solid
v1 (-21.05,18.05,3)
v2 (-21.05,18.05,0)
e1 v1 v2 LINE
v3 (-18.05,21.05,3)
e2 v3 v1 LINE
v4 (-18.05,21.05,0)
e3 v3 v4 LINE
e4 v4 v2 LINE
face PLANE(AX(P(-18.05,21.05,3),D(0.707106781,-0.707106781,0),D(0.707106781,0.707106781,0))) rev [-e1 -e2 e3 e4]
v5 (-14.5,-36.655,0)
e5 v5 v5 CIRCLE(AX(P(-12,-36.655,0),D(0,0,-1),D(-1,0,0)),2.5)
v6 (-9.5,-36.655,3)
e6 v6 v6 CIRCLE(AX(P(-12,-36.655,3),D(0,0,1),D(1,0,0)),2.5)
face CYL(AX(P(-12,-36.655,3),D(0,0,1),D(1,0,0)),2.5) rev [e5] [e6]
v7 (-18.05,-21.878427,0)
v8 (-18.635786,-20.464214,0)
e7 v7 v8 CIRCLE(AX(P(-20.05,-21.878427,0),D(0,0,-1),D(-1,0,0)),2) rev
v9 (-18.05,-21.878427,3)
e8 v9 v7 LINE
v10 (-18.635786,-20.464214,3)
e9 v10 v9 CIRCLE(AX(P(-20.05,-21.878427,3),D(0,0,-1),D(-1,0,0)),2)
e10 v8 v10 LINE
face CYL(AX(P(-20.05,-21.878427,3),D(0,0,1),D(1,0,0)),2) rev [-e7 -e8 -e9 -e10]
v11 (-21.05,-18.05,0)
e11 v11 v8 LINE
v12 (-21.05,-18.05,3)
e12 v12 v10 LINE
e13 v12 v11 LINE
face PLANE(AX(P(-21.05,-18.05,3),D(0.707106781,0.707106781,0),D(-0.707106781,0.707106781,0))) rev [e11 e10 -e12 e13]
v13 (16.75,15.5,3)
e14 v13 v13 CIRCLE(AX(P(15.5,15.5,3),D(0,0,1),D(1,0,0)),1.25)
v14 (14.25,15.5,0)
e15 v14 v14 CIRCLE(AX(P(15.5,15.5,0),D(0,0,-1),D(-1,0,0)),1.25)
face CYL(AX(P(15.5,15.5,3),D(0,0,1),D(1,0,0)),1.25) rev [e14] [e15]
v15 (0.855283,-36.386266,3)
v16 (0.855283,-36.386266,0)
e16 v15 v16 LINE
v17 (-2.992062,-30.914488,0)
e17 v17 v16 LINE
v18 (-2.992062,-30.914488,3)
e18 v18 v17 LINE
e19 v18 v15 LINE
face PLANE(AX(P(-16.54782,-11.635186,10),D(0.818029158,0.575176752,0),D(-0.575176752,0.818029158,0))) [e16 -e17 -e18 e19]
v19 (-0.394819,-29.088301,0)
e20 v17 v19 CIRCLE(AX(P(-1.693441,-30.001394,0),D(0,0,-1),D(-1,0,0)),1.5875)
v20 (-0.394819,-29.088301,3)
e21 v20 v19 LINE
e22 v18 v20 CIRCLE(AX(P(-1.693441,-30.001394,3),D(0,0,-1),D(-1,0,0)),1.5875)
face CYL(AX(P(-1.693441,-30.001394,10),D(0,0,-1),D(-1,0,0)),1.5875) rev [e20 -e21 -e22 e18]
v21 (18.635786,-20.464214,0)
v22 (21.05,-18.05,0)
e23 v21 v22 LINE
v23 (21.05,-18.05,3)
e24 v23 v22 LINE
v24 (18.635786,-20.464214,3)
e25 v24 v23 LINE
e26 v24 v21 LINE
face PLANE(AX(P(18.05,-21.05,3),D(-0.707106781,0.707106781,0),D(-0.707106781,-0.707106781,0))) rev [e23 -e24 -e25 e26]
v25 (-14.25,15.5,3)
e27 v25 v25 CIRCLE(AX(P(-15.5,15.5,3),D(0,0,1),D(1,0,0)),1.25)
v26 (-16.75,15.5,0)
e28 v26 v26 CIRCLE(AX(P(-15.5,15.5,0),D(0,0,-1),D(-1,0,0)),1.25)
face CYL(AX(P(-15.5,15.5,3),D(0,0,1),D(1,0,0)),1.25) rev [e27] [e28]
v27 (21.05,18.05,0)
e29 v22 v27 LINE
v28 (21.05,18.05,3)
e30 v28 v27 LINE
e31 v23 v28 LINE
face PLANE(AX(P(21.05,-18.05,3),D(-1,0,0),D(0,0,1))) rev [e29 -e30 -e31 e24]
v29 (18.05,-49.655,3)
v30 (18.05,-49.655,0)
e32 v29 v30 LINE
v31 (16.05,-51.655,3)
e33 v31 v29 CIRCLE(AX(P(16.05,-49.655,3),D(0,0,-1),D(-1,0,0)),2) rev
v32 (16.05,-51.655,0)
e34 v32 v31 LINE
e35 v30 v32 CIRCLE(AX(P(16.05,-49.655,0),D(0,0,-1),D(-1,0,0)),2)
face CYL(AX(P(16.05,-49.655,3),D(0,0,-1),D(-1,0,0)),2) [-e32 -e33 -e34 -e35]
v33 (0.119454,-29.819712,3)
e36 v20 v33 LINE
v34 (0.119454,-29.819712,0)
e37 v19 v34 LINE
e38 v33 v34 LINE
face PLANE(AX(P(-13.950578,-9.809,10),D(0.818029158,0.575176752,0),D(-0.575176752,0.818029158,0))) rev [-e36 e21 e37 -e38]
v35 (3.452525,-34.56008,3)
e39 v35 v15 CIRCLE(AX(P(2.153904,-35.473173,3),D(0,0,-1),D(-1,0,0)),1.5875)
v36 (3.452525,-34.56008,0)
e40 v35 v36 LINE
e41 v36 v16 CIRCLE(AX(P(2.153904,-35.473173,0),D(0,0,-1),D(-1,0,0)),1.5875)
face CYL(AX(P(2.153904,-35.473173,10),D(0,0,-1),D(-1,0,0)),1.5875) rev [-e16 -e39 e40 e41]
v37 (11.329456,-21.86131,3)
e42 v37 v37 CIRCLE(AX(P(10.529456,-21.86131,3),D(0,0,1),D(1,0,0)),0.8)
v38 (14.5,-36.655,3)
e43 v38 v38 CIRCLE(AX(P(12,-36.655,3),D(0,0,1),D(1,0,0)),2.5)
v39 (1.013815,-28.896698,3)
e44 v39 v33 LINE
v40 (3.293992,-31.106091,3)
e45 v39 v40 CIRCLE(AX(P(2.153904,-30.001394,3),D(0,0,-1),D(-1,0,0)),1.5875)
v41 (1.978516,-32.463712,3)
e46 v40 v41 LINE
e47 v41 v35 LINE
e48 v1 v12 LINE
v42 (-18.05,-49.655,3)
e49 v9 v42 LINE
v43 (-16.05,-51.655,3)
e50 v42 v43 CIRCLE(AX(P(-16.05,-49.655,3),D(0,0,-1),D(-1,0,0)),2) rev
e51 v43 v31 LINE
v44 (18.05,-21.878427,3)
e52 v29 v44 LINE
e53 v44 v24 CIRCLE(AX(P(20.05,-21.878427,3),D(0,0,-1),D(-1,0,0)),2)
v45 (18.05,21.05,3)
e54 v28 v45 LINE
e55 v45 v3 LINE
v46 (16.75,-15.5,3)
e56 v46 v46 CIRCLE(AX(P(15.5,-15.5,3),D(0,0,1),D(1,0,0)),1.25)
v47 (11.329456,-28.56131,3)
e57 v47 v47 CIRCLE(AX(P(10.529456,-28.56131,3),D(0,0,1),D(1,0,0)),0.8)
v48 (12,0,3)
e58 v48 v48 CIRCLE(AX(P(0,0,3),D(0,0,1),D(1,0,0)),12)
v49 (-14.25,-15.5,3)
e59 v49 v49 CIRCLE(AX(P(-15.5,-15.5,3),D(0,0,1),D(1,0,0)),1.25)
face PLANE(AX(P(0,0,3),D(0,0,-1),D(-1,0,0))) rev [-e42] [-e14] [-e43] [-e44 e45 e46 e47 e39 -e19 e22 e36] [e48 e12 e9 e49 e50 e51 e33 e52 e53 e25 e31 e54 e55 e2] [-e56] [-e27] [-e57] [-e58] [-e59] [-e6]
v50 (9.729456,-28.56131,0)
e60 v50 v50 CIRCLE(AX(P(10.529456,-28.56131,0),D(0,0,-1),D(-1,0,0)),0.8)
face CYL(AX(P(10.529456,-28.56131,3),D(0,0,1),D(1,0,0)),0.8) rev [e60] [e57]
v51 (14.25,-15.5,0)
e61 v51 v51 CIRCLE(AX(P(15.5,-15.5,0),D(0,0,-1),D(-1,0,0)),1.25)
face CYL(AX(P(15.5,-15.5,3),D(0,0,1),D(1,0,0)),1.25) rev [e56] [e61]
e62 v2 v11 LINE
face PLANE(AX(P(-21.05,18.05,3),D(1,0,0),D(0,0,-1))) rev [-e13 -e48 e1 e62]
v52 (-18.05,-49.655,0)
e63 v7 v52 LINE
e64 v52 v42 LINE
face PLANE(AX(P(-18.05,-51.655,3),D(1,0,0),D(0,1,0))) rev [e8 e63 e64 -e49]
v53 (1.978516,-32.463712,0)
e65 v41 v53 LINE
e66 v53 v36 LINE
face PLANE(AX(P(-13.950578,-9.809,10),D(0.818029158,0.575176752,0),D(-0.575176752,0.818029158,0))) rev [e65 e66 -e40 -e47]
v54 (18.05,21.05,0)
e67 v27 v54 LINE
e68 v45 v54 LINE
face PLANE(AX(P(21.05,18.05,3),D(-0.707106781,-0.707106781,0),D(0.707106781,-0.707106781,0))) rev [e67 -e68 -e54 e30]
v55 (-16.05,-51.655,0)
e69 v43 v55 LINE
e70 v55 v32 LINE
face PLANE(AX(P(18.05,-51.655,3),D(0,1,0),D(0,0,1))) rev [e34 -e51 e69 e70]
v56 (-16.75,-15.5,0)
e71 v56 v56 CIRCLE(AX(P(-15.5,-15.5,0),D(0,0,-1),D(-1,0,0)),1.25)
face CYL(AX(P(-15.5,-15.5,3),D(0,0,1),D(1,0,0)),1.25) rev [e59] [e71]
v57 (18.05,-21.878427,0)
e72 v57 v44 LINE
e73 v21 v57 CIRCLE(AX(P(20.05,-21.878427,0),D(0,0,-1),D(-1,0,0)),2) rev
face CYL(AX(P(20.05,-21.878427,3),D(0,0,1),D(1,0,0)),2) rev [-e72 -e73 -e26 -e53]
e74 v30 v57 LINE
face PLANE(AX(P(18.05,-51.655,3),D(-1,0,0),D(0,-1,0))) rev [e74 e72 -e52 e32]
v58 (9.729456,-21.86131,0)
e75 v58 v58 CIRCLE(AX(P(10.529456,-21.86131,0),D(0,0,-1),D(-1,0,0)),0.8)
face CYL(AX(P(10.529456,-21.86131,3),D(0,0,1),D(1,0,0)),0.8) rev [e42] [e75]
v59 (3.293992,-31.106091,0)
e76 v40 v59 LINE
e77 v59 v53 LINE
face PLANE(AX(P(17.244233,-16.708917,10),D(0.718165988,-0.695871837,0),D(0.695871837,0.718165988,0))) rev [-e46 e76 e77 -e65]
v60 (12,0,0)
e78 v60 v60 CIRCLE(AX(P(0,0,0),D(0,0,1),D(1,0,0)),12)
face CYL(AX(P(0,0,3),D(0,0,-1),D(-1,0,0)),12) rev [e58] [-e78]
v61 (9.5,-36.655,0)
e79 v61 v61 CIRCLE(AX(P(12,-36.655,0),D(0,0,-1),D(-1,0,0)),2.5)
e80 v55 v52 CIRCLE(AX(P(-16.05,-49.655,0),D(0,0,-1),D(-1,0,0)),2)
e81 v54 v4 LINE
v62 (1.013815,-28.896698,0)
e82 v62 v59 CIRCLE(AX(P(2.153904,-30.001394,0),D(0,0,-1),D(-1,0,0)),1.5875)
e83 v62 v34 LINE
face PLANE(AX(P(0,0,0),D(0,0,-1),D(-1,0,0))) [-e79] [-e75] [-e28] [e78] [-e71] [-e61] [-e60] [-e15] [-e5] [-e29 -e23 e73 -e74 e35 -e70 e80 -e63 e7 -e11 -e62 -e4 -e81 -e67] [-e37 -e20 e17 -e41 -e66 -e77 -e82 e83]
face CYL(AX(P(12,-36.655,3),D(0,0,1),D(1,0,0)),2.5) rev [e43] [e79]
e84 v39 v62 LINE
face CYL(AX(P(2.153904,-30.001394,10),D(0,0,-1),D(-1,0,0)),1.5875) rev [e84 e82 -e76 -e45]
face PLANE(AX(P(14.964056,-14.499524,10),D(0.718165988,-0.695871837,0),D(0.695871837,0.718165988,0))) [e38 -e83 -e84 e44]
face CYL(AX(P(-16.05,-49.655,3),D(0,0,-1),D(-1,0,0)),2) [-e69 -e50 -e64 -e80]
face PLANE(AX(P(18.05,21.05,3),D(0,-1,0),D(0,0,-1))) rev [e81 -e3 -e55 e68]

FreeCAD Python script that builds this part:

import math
import FreeCAD as App
import Part
import Sketcher


def edges_at(feature, points):
    """Names of the edges that pass closest to the given points."""
    edges = feature.Shape.Edges
    near = lambda p: min(range(len(edges)), key=lambda i: edges[i].distToShape(Part.Vertex(*p))[0])
    return sorted({f"Edge{near(p) + 1}" for p in points})

doc = App.newDocument("Part")
params = doc.addObject("Spreadsheet::Sheet", "Params")
for row, (alias, value) in enumerate([
    ("sketch1_diameter", "24 mm"),
    ("sketch1_width", "36.1 mm"),
    ("pad1_length", "3 mm"),
    ("sketch2_diameter", "2.5 mm"),
    ("hole_diameter", "2.5 mm"),
    ("hole_depth", "5 mm"),
    ("sketch3_diameter", "5 mm"),
    ("hole2_diameter", "5 mm"),
    ("hole2_depth", "5 mm"),
    ("fillet_radius", "2 mm"),
    ("sketch4_diameter", "1.6 mm"),
    ("hole3_diameter", "1.6 mm"),
    ("hole3_depth", "5 mm"),
    ("pocket1_length", "10 mm"),
], start=1):
    params.set(f"A{row}", alias)
    params.set(f"B{row}", "=" + value)
    params.setAlias(f"B{row}", alias)

body = doc.addObject("PartDesign::Body", "Body")

# Sketch on XY plane
sketch1 = doc.addObject("Sketcher::SketchObject", "Sketch")
body.addObject(sketch1)
sketch1.AttachmentSupport = (doc.XY_Plane, [""])
sketch1.MapMode = "FlatFace"
sketch1.addGeometry(Part.LineSegment(App.Vector(18.05, -51.655, 0), App.Vector(18.05, -21.05, 0)), False)
sketch1.addGeometry(Part.LineSegment(App.Vector(18.05, -21.05, 0), App.Vector(21.05, -18.05, 0)), False)
sketch1.addGeometry(Part.LineSegment(App.Vector(21.05, -18.05, 0), App.Vector(21.05, 18.05, 0)), False)
sketch1.addGeometry(Part.LineSegment(App.Vector(21.05, 18.05, 0), App.Vector(18.05, 21.05, 0)), False)
sketch1.addGeometry(Part.LineSegment(App.Vector(18.05, 21.05, 0), App.Vector(-18.05, 21.05, 0)), False)
sketch1.addGeometry(Part.LineSegment(App.Vector(-18.05, 21.05, 0), App.Vector(-21.05, 18.05, 0)), False)
sketch1.addGeometry(Part.LineSegment(App.Vector(-21.05, 18.05, 0), App.Vector(-21.05, -18.05, 0)), False)
sketch1.addGeometry(Part.LineSegment(App.Vector(-21.05, -18.05, 0), App.Vector(-18.05, -21.05, 0)), False)
sketch1.addGeometry(Part.LineSegment(App.Vector(-18.05, -21.05, 0), App.Vector(-18.05, -51.655, 0)), False)
sketch1.addGeometry(Part.LineSegment(App.Vector(-18.05, -51.655, 0), App.Vector(18.05, -51.655, 0)), False)
sketch1.addGeometry(Part.Circle(App.Vector(0, 0, 0), App.Vector(0, 0, 1), 12), False)
sketch1.addConstraint(Sketcher.Constraint("Coincident", 0, 2, 1, 1))
sketch1.addConstraint(Sketcher.Constraint("Coincident", 1, 2, 2, 1))
sketch1.addConstraint(Sketcher.Constraint("Coincident", 2, 2, 3, 1))
sketch1.addConstraint(Sketcher.Constraint("Coincident", 3, 2, 4, 1))
sketch1.addConstraint(Sketcher.Constraint("Coincident", 4, 2, 5, 1))
sketch1.addConstraint(Sketcher.Constraint("Coincident", 5, 2, 6, 1))
sketch1.addConstraint(Sketcher.Constraint("Coincident", 6, 2, 7, 1))
sketch1.addConstraint(Sketcher.Constraint("Coincident", 7, 2, 8, 1))
sketch1.addConstraint(Sketcher.Constraint("Coincident", 8, 2, 9, 1))
sketch1.addConstraint(Sketcher.Constraint("Coincident", 9, 2, 0, 1))
sketch1.addConstraint(Sketcher.Constraint("Vertical", 0))
sketch1.addConstraint(Sketcher.Constraint("Vertical", 2))
sketch1.addConstraint(Sketcher.Constraint("Horizontal", 4))
sketch1.addConstraint(Sketcher.Constraint("Vertical", 6))
sketch1.addConstraint(Sketcher.Constraint("Vertical", 8))
sketch1.addConstraint(Sketcher.Constraint("Horizontal", 9))
sketch1.addConstraint(Sketcher.Constraint("Coincident", 10, 3, -1, 1))
sketch1.addConstraint(Sketcher.Constraint("Symmetric", 0, 2, 4, 2, -1, 1))
sketch1.addConstraint(Sketcher.Constraint("Symmetric", 1, 2, 5, 2, -1, 1))
sketch1.addConstraint(Sketcher.Constraint("Symmetric", 3, 2, 7, 2, -1, 1))
sketch1.addConstraint(Sketcher.Constraint("Perpendicular", 1, 3))
sketch1.addConstraint(Sketcher.Constraint("Perpendicular", 5, 7))
sketch1.addConstraint(Sketcher.Constraint("Horizontal", 2, 2, 5, 2))
sketch1.addConstraint(Sketcher.Constraint("Vertical", 0, 2, 3, 2))
sketch1.addConstraint(Sketcher.Constraint("Equal", 9, 2))
sketch1.addConstraint(Sketcher.Constraint("Diameter", 10, 24.0))
sketch1.addConstraint(Sketcher.Constraint("DistanceX", 4, 2, 4, 1, 36.1))
sketch1.addConstraint(Sketcher.Constraint("DistanceX", 0, 2, 1, 2, 3.0))
sketch1.addConstraint(Sketcher.Constraint("DistanceY", 0, 1, 0, 2, 30.605))
sketch1.setExpression("Constraints[25]", "Params.sketch1_diameter")
sketch1.setExpression("Constraints[26]", "Params.sketch1_width")
pad1 = doc.addObject("PartDesign::Pad", "Pad")
body.addObject(pad1)
pad1.Profile = sketch1
pad1.setExpression("Length", "Params.pad1_length")

# Sketch on XY plane
sketch2 = doc.addObject("Sketcher::SketchObject", "Sketch001")
body.addObject(sketch2)
sketch2.AttachmentSupport = (doc.XY_Plane, [""])
sketch2.MapMode = "FlatFace"
sketch2.AttachmentOffset = App.Placement(App.Vector(0, 0, 3), App.Rotation())
sketch2.addGeometry(Part.Circle(App.Vector(-15.5, 15.5, 0), App.Vector(0, 0, 1), 1.25), False)
sketch2.addGeometry(Part.Circle(App.Vector(15.5, 15.5, 0), App.Vector(0, 0, 1), 1.25), False)
sketch2.addGeometry(Part.Circle(App.Vector(-15.5, -15.5, 0), App.Vector(0, 0, 1), 1.25), False)
sketch2.addGeometry(Part.Circle(App.Vector(15.5, -15.5, 0), App.Vector(0, 0, 1), 1.25), False)
sketch2.addConstraint(Sketcher.Constraint("Equal", 0, 1))
sketch2.addConstraint(Sketcher.Constraint("Equal", 1, 2))
sketch2.addConstraint(Sketcher.Constraint("Equal", 2, 3))
sketch2.addConstraint(Sketcher.Constraint("Symmetric", 1, 3, 2, 3, -1, 1))
sketch2.addConstraint(Sketcher.Constraint("Symmetric", 0, 3, 3, 3, -1, 1))
sketch2.addConstraint(Sketcher.Constraint("Symmetric", 0, 3, 1, 3, -2))
sketch2.addConstraint(Sketcher.Constraint("Diameter", 0, 2.5))
sketch2.addConstraint(Sketcher.Constraint("DistanceX", 0, 3, 1, 3, 31.0))
sketch2.addConstraint(Sketcher.Constraint("DistanceY", 2, 3, 0, 3, 31.0))
sketch2.setExpression("Constraints[6]", "Params.sketch2_diameter")
doc.recompute()
hole = doc.addObject("PartDesign::Hole", "Hole")
body.addObject(hole)
hole.Profile = sketch2
hole.ThreadType = "None"
hole.setExpression("Diameter", "Params.hole_diameter")
hole.DepthType = "Dimension"
hole.setExpression("Depth", "Params.hole_depth")
hole.DrillPoint = "Angled"
hole.DrillPointAngle = 118

# Sketch on XY plane
sketch3 = doc.addObject("Sketcher::SketchObject", "Sketch002")
body.addObject(sketch3)
sketch3.AttachmentSupport = (doc.XY_Plane, [""])
sketch3.MapMode = "FlatFace"
sketch3.AttachmentOffset = App.Placement(App.Vector(0, 0, 3), App.Rotation())
sketch3.addGeometry(Part.Circle(App.Vector(-12, -36.655, 0), App.Vector(0, 0, 1), 2.5), False)
sketch3.addGeometry(Part.Circle(App.Vector(12, -36.655, 0), App.Vector(0, 0, 1), 2.5), False)
sketch3.addConstraint(Sketcher.Constraint("Equal", 0, 1))
sketch3.addConstraint(Sketcher.Constraint("Symmetric", 0, 3, 1, 3, -2))
sketch3.addConstraint(Sketcher.Constraint("Diameter", 0, 5.0))
sketch3.addConstraint(Sketcher.Constraint("DistanceX", 0, 3, -1, 1, 12.0))
sketch3.addConstraint(Sketcher.Constraint("DistanceY", 0, 3, -1, 1, 36.655))
sketch3.setExpression("Constraints[2]", "Params.sketch3_diameter")
doc.recompute()
hole2 = doc.addObject("PartDesign::Hole", "Hole001")
body.addObject(hole2)
hole2.Profile = sketch3
hole2.ThreadType = "None"
hole2.setExpression("Diameter", "Params.hole2_diameter")
hole2.DepthType = "Dimension"
hole2.setExpression("Depth", "Params.hole2_depth")
hole2.DrillPoint = "Angled"
hole2.DrillPointAngle = 118
doc.recompute()

fillet = doc.addObject("PartDesign::Fillet", "Fillet")
body.addObject(fillet)
fillet.Base = (hole2, edges_at(hole2, [
    (18.05, -21.05, 1.5),
    (18.05, -51.655, 1.5),
    (-18.05, -51.655, 1.5),
    (-18.05, -21.05, 1.5),
]))
fillet.setExpression("Radius", "Params.fillet_radius")

# Sketch on XY plane
sketch4 = doc.addObject("Sketcher::SketchObject", "Sketch003")
body.addObject(sketch4)
sketch4.AttachmentSupport = (doc.XY_Plane, [""])
sketch4.MapMode = "FlatFace"
sketch4.AttachmentOffset = App.Placement(App.Vector(0, 0, 3), App.Rotation())
sketch4.addGeometry(Part.Circle(App.Vector(10.529456, -21.86131, 0), App.Vector(0, 0, 1), 0.8), False)
sketch4.addGeometry(Part.Circle(App.Vector(10.529456, -28.56131, 0), App.Vector(0, 0, 1), 0.8), False)
sketch4.addConstraint(Sketcher.Constraint("Equal", 0, 1))
sketch4.addConstraint(Sketcher.Constraint("Vertical", 0, 3, 1, 3))
sketch4.addConstraint(Sketcher.Constraint("Diameter", 0, 1.6))
sketch4.addConstraint(Sketcher.Constraint("DistanceY", 1, 3, 0, 3, 6.7))
sketch4.addConstraint(Sketcher.Constraint("DistanceY", 0, 3, -1, 1, 21.86131))
sketch4.addConstraint(Sketcher.Constraint("DistanceX", -1, 1, 0, 3, 10.529456))
sketch4.setExpression("Constraints[2]", "Params.sketch4_diameter")
doc.recompute()
hole3 = doc.addObject("PartDesign::Hole", "Hole002")
body.addObject(hole3)
hole3.Profile = sketch4
hole3.ThreadType = "None"
hole3.setExpression("Diameter", "Params.hole3_diameter")
hole3.DepthType = "Dimension"
hole3.setExpression("Depth", "Params.hole3_depth")
hole3.DrillPoint = "Angled"
hole3.DrillPointAngle = 118

# Sketch on XY plane
sketch5 = doc.addObject("Sketcher::SketchObject", "Sketch004")
body.addObject(sketch5)
sketch5.AttachmentSupport = (doc.XY_Plane, [""])
sketch5.MapMode = "FlatFace"
sketch5.addGeometry(Part.LineSegment(App.Vector(0.855283, -36.386266, 0), App.Vector(-2.992062, -30.914488, 0)), False)
sketch5.addGeometry(Part.ArcOfCircle(Part.Circle(App.Vector(-1.693441, -30.001394, 0), App.Vector(0, 0, 1), 1.5875), math.radians(35.112011), math.radians(215.112011)), False)
sketch5.addGeometry(Part.LineSegment(App.Vector(-0.394819, -29.088301, 0), App.Vector(0.119454, -29.819712, 0)), False)
sketch5.addGeometry(Part.LineSegment(App.Vector(0.119454, -29.819712, 0), App.Vector(1.013815, -28.896698, 0)), False)
sketch5.addGeometry(Part.ArcOfCircle(Part.Circle(App.Vector(2.153904, -30.001394, 0), App.Vector(0, 0, 1), 1.5875), math.radians(-44.096732), math.radians(135.903268)), False)
sketch5.addGeometry(Part.LineSegment(App.Vector(3.293992, -31.106091, 0), App.Vector(1.978516, -32.463712, 0)), False)
sketch5.addGeometry(Part.LineSegment(App.Vector(1.978516, -32.463712, 0), App.Vector(3.452525, -34.56008, 0)), False)
sketch5.addGeometry(Part.ArcOfCircle(Part.Circle(App.Vector(2.153904, -35.473173, 0), App.Vector(0, 0, 1), 1.5875), math.radians(-144.887989), math.radians(35.112011)), False)
sketch5.addConstraint(Sketcher.Constraint("Tangent", 0, 2, 1, 2))
sketch5.addConstraint(Sketcher.Constraint("Tangent", 1, 1, 2, 1))
sketch5.addConstraint(Sketcher.Constraint("Coincident", 2, 2, 3, 1))
sketch5.addConstraint(Sketcher.Constraint("Tangent", 3, 2, 4, 2))
sketch5.addConstraint(Sketcher.Constraint("Tangent", 4, 1, 5, 1))
sketch5.addConstraint(Sketcher.Constraint("Coincident", 5, 2, 6, 1))
sketch5.addConstraint(Sketcher.Constraint("Tangent", 6, 2, 7, 2))
sketch5.addConstraint(Sketcher.Constraint("Tangent", 7, 1, 0, 1))
sketch5.addConstraint(Sketcher.Constraint("Equal", 1, 4))
sketch5.addConstraint(Sketcher.Constraint("Equal", 4, 7))
sketch5.addConstraint(Sketcher.Constraint("Parallel", 0, 2))
sketch5.addConstraint(Sketcher.Constraint("Parallel", 3, 5))
sketch5.addConstraint(Sketcher.Constraint("Parallel", 2, 6))
sketch5.addConstraint(Sketcher.Constraint("Horizontal", 1, 3, 4, 3))
sketch5.addConstraint(Sketcher.Constraint("Vertical", 4, 3, 7, 3))
sketch5.addConstraint(Sketcher.Constraint("Radius", 1, 1.5875))
sketch5.addConstraint(Sketcher.Constraint("DistanceY", 5, 2, 2, 2, 2.644))
sketch5.addConstraint(Sketcher.Constraint("Distance", 5, 1.8904))
sketch5.addConstraint(Sketcher.Constraint("DistanceY", 1, 1, -1, 1, 29.088301))
sketch5.addConstraint(Sketcher.Constraint("DistanceX", 3, 2, 5, 2, 0.964701))
sketch5.addConstraint(Sketcher.Constraint("DistanceX", 1, 3, -1, 1, 1.693441))
pocket1 = doc.addObject("PartDesign::Pocket", "Pocket")
body.addObject(pocket1)
pocket1.Profile = sketch5
pocket1.setExpression("Length", "Params.pocket1_length")
pocket1.Reversed = True

doc.recompute()
